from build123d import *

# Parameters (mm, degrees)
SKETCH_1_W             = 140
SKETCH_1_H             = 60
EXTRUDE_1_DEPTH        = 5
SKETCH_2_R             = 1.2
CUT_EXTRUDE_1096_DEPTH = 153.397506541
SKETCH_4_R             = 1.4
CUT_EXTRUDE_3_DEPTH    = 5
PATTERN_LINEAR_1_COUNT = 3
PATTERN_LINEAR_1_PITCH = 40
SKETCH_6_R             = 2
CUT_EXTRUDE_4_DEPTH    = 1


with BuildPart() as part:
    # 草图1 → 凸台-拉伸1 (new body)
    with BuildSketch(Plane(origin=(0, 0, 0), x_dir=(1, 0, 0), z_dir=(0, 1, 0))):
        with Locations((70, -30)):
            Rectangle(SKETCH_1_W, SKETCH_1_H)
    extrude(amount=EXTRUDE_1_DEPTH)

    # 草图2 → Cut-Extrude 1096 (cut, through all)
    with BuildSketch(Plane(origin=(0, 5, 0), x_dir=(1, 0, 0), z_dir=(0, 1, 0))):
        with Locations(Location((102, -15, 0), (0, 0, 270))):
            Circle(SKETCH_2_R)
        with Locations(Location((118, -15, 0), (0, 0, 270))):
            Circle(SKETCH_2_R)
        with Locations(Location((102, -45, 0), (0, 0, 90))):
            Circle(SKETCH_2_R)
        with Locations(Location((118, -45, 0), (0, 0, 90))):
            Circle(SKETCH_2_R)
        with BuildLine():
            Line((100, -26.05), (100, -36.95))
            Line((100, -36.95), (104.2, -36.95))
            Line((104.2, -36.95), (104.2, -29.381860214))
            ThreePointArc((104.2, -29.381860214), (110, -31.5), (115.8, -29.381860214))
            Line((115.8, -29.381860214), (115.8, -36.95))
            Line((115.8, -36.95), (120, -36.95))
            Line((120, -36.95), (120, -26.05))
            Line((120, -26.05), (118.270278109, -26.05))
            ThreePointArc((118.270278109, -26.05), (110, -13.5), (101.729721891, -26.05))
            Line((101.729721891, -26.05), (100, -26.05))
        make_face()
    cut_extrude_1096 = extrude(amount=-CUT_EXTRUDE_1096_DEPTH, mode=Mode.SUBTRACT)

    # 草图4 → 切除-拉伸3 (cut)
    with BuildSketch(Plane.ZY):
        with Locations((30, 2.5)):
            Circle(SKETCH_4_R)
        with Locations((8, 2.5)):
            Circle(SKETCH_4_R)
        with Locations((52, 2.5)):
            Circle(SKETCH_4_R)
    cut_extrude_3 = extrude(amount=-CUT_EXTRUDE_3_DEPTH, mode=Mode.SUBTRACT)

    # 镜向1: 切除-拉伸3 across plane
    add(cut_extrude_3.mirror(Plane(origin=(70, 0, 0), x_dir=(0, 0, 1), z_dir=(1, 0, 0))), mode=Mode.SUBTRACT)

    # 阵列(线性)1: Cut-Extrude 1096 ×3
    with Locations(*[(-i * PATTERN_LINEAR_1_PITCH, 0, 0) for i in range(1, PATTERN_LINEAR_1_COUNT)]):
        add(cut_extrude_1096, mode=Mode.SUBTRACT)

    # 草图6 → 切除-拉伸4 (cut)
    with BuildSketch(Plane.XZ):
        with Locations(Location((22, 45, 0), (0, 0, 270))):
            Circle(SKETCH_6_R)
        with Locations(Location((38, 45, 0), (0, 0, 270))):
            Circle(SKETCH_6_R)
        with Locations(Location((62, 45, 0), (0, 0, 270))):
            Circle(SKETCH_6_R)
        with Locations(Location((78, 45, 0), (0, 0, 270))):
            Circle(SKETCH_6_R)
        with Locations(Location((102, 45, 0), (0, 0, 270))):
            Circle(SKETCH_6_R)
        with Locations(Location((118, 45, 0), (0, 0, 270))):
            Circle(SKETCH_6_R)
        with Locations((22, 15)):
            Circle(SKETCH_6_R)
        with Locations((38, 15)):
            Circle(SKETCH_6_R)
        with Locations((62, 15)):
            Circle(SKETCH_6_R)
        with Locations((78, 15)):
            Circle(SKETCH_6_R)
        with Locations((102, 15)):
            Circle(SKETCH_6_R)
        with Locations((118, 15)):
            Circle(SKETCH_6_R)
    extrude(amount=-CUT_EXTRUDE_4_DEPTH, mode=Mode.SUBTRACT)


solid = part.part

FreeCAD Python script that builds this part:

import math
import FreeCAD as App
import Part
import Sketcher

V = App.Vector
Q = App.Units.Quantity


def add_polygon(sketch, points):
    """Adds a closed chain of lines whose ends are joined by coincident constraints."""
    first, n = sketch.GeometryCount, len(points)
    for a, b in zip(points, points[1:] + points[:1]):
        sketch.addGeometry(Part.LineSegment(App.Vector(*a, 0), App.Vector(*b, 0)), False)
    for i in range(n):
        sketch.addConstraint(Sketcher.Constraint("Coincident", first + i, 2, first + (i + 1) % n, 1))

doc = App.newDocument("Part")
params = doc.addObject("Spreadsheet::Sheet", "Params")
for row, (alias, value) in enumerate([
    ("sketch1_width", "140 mm"),
    ("sketch1_height", "60 mm"),
    ("pad1_length", "5 mm"),
    ("sketch2_radius", "9 mm"),
    ("sketch2_diameter", "2.4 mm"),
    ("sketch2_width", "4.2 mm"),
    ("sketch2_height", "10.9 mm"),
    ("sketch3_diameter", "2.8 mm"),
    ("pocket2_length", "5 mm"),
    ("linearpattern_pitch", "40 mm"),
    ("sketch4_diameter", "4 mm"),
    ("pocket3_length", "1 mm"),
], start=1):
    params.set(f"A{row}", alias)
    params.set(f"B{row}", "=" + value)
    params.setAlias(f"B{row}", alias)

body = doc.addObject("PartDesign::Body", "Body")

# Sketch on XZ plane
sketch1 = body.newObject("Sketcher::SketchObject", "Sketch")
sketch1.AttachmentSupport = (doc.getObject("XZ_Plane"), [""])
sketch1.MapMode = "FlatFace"
add_polygon(sketch1, [(0, 0), (0, 60), (140, 60), (140, 0)])  # lines 0-3
sketch1.addConstraint([
    Sketcher.Constraint("Vertical", 0),
    Sketcher.Constraint("Horizontal", 1),
    Sketcher.Constraint("Vertical", 2),
    Sketcher.Constraint("Horizontal", 3),
    Sketcher.Constraint("Coincident", 3, 2, -1, 1),
    Sketcher.Constraint("DistanceX", 1, 1, 1, 2, Q("140 mm")),
    Sketcher.Constraint("DistanceY", 0, 1, 0, 2, Q("60 mm")),
])
sketch1.setExpression("Constraints[9]", "Params.sketch1_width")
sketch1.setExpression("Constraints[10]", "Params.sketch1_height")
pad1 = body.newObject("PartDesign::Pad", "Pad")
pad1.Profile = sketch1
pad1.setExpression("Length", "Params.pad1_length")
pad1.Reversed = True

# Sketch on XZ plane
sketch2 = body.newObject("Sketcher::SketchObject", "Sketch001")
sketch2.AttachmentSupport = (doc.getObject("XZ_Plane"), [""])
sketch2.MapMode = "FlatFace"
sketch2.AttachmentOffset = App.Placement(V(0, 0, -5), App.Rotation())
sketch2.addGeometry([
    Part.Circle(V(102, 15, 0), V(0, 0, 1), 1.2),  # 0
    Part.Circle(V(118, 15, 0), V(0, 0, 1), 1.2),  # 1
    Part.Circle(V(102, 45, 0), V(0, 0, 1), 1.2),  # 2
    Part.Circle(V(118, 45, 0), V(0, 0, 1), 1.2),  # 3
    Part.LineSegment(V(100, 26.05, 0), V(100, 36.95, 0)),  # 4
    Part.LineSegment(V(100, 36.95, 0), V(104.2, 36.95, 0)),  # 5
    Part.LineSegment(V(104.2, 36.95, 0), V(104.2, 29.38186, 0)),  # 6
    Part.ArcOfCircle(Part.Circle(V(110, 22.5, 0), V(0, 0, 1), 9), math.radians(49.875965), math.radians(130.124035)),  # 7
    Part.LineSegment(V(115.8, 29.38186, 0), V(115.8, 36.95, 0)),  # 8
    Part.LineSegment(V(115.8, 36.95, 0), V(120, 36.95, 0)),  # 9
    Part.LineSegment(V(120, 36.95, 0), V(120, 26.05, 0)),  # 10
    Part.LineSegment(V(120, 26.05, 0), V(118.270278, 26.05, 0)),  # 11
    Part.ArcOfCircle(Part.Circle(V(110, 22.5, 0), V(0, 0, 1), 9), math.radians(156.76867), math.radians(383.23133)),  # 12
    Part.LineSegment(V(101.729722, 26.05, 0), V(100, 26.05, 0)),  # 13
], False)
sketch2.addConstraint([
    Sketcher.Constraint("Coincident", 4, 2, 5, 1),
    Sketcher.Constraint("Coincident", 5, 2, 6, 1),
    Sketcher.Constraint("Coincident", 6, 2, 7, 2),
    Sketcher.Constraint("Coincident", 7, 1, 8, 1),
    Sketcher.Constraint("Coincident", 8, 2, 9, 1),
    Sketcher.Constraint("Coincident", 9, 2, 10, 1),
    Sketcher.Constraint("Coincident", 10, 2, 11, 1),
    Sketcher.Constraint("Coincident", 11, 2, 12, 2),
    Sketcher.Constraint("Coincident", 12, 1, 13, 1),
    Sketcher.Constraint("Coincident", 13, 2, 4, 1),
    Sketcher.Constraint("Vertical", 4),
    Sketcher.Constraint("Horizontal", 5),
    Sketcher.Constraint("Vertical", 6),
    Sketcher.Constraint("Vertical", 8),
    Sketcher.Constraint("Horizontal", 9),
    Sketcher.Constraint("Vertical", 10),
    Sketcher.Constraint("Horizontal", 11),
    Sketcher.Constraint("Horizontal", 13),
    Sketcher.Constraint("Coincident", 12, 3, 7, 3),
    Sketcher.Constraint("Equal", 0, 1),
    Sketcher.Constraint("Equal", 1, 2),
    Sketcher.Constraint("Equal", 2, 3),
    Sketcher.Constraint("Equal", 7, 12),
    Sketcher.Constraint("Horizontal", 0, 3, 1, 3),
    Sketcher.Constraint("Horizontal", 2, 3, 3, 3),
    Sketcher.Constraint("Horizontal", 6, 2, 7, 1),
    Sketcher.Constraint("Horizontal", 5, 2, 8, 2),
    Sketcher.Constraint("Horizontal", 11, 2, 12, 1),
    Sketcher.Constraint("Vertical", 0, 3, 2, 3),
    Sketcher.Constraint("Vertical", 1, 3, 3, 3),
    Sketcher.Constraint("Equal", 5, 9),
    Sketcher.Constraint("Radius", 7, Q("9 mm")),
    Sketcher.Constraint("Diameter", 0, Q("2.4 mm")),
    Sketcher.Constraint("DistanceX", 5, 1, 5, 2, Q("4.2 mm")),
    Sketcher.Constraint("DistanceY", 4, 1, 4, 2, Q("10.9 mm")),
    Sketcher.Constraint("DistanceX", -1, 1, 0, 3, Q("102 mm")),
    Sketcher.Constraint("DistanceY", -1, 1, 0, 3, Q("15 mm")),
    Sketcher.Constraint("DistanceX", -1, 1, 1, 3, Q("118 mm")),
    Sketcher.Constraint("DistanceY", -1, 1, 2, 3, Q("45 mm")),
    Sketcher.Constraint("DistanceX", -1, 1, 7, 3, Q("110 mm")),
    Sketcher.Constraint("DistanceX", -1, 1, 4, 2, Q("100 mm")),
    Sketcher.Constraint("DistanceY", -1, 1, 7, 3, Q("22.5 mm")),
    Sketcher.Constraint("DistanceY", -1, 1, 4, 2, Q("36.95 mm")),
])
sketch2.setExpression("Constraints[31]", "Params.sketch2_radius")
sketch2.setExpression("Constraints[32]", "Params.sketch2_diameter")
sketch2.setExpression("Constraints[33]", "Params.sketch2_width")
sketch2.setExpression("Constraints[34]", "Params.sketch2_height")
pocket1 = body.newObject("PartDesign::Pocket", "Pocket")
pocket1.Profile = sketch2
pocket1.Type = "ThroughAll"
pocket1.Reversed = True

# Sketch on YZ plane
sketch3 = body.newObject("Sketcher::SketchObject", "Sketch002")
sketch3.AttachmentSupport = (doc.getObject("YZ_Plane"), [""])
sketch3.MapMode = "FlatFace"
sketch3.addGeometry([
    Part.Circle(V(2.5, 30, 0), V(0, 0, 1), 1.4),
    Part.Circle(V(2.5, 8, 0), V(0, 0, 1), 1.4),
    Part.Circle(V(2.5, 52, 0), V(0, 0, 1), 1.4),
], False)
sketch3.addConstraint([
    Sketcher.Constraint("Equal", 0, 1),
    Sketcher.Constraint("Equal", 1, 2),
    Sketcher.Constraint("Vertical", 0, 3, 1, 3),
    Sketcher.Constraint("Vertical", 1, 3, 2, 3),
    Sketcher.Constraint("Diameter", 0, Q("2.8 mm")),
    Sketcher.Constraint("DistanceY", -1, 1, 0, 3, Q("30 mm")),
    Sketcher.Constraint("DistanceY", -1, 1, 1, 3, Q("8 mm")),
    Sketcher.Constraint("DistanceY", -1, 1, 2, 3, Q("52 mm")),
    Sketcher.Constraint("DistanceX", -1, 1, 0, 3, Q("2.5 mm")),
])
sketch3.setExpression("Constraints[4]", "Params.sketch3_diameter")
pocket2 = body.newObject("PartDesign::Pocket", "Pocket001")
pocket2.Profile = sketch3
pocket2.setExpression("Length", "Params.pocket2_length")
pocket2.Reversed = True
doc.recompute()

datumplane = body.newObject("PartDesign::Plane", "DatumPlane")
datumplane.AttachmentSupport = (doc.getObject("YZ_Plane"), [""])
datumplane.MapMode = "FlatFace"
datumplane.AttachmentOffset = App.Placement(V(0, 0, 70), App.Rotation())
mirrored = body.newObject("PartDesign::Mirrored", "Mirrored")
mirrored.Originals = [pocket2]
mirrored.MirrorPlane = (datumplane, [""])
body.Tip = mirrored
doc.recompute()

linearpattern = body.newObject("PartDesign::LinearPattern", "LinearPattern")
linearpattern.Originals = [pocket1]
linearpattern.Direction = (doc.getObject("X_Axis"), [""])
linearpattern.Mode = "offset"
linearpattern.setExpression("Offset", "Params.linearpattern_pitch")
linearpattern.Occurrences = 3
linearpattern.Reversed = True
body.Tip = linearpattern

# Sketch on XZ plane
sketch4 = body.newObject("Sketcher::SketchObject", "Sketch003")
sketch4.AttachmentSupport = (doc.getObject("XZ_Plane"), [""])
sketch4.MapMode = "FlatFace"
sketch4.addGeometry([
    Part.Circle(V(22, 45, 0), V(0, 0, 1), 2),  # 0
    Part.Circle(V(38, 45, 0), V(0, 0, 1), 2),  # 1
    Part.Circle(V(62, 45, 0), V(0, 0, 1), 2),  # 2
    Part.Circle(V(78, 45, 0), V(0, 0, 1), 2),  # 3
    Part.Circle(V(102, 45, 0), V(0, 0, 1), 2),  # 4
    Part.Circle(V(118, 45, 0), V(0, 0, 1), 2),  # 5
    Part.Circle(V(22, 15, 0), V(0, 0, 1), 2),  # 6
    Part.Circle(V(38, 15, 0), V(0, 0, 1), 2),  # 7
    Part.Circle(V(62, 15, 0), V(0, 0, 1), 2),  # 8
    Part.Circle(V(78, 15, 0), V(0, 0, 1), 2),  # 9
    Part.Circle(V(102, 15, 0), V(0, 0, 1), 2),  # 10
    Part.Circle(V(118, 15, 0), V(0, 0, 1), 2),  # 11
], False)
sketch4.addConstraint([
    Sketcher.Constraint("Equal", 0, 1),
    Sketcher.Constraint("Equal", 1, 2),
    Sketcher.Constraint("Equal", 2, 3),
    Sketcher.Constraint("Equal", 3, 4),
    Sketcher.Constraint("Equal", 4, 5),
    Sketcher.Constraint("Equal", 5, 6),
    Sketcher.Constraint("Equal", 6, 7),
    Sketcher.Constraint("Equal", 7, 8),
    Sketcher.Constraint("Equal", 8, 9),
    Sketcher.Constraint("Equal", 9, 10),
    Sketcher.Constraint("Equal", 10, 11),
    Sketcher.Constraint("Horizontal", 0, 3, 1, 3),
    Sketcher.Constraint("Horizontal", 1, 3, 2, 3),
    Sketcher.Constraint("Horizontal", 2, 3, 3, 3),
    Sketcher.Constraint("Horizontal", 3, 3, 4, 3),
    Sketcher.Constraint("Horizontal", 4, 3, 5, 3),
    Sketcher.Constraint("Horizontal", 6, 3, 7, 3),
    Sketcher.Constraint("Horizontal", 7, 3, 8, 3),
    Sketcher.Constraint("Horizontal", 8, 3, 9, 3),
    Sketcher.Constraint("Horizontal", 9, 3, 10, 3),
    Sketcher.Constraint("Horizontal", 10, 3, 11, 3),
    Sketcher.Constraint("Vertical", 0, 3, 6, 3),
    Sketcher.Constraint("Vertical", 1, 3, 7, 3),
    Sketcher.Constraint("Vertical", 2, 3, 8, 3),
    Sketcher.Constraint("Vertical", 3, 3, 9, 3),
    Sketcher.Constraint("Vertical", 4, 3, 10, 3),
    Sketcher.Constraint("Vertical", 5, 3, 11, 3),
    Sketcher.Constraint("Diameter", 0, Q("4 mm")),
    Sketcher.Constraint("DistanceX", -1, 1, 0, 3, Q("22 mm")),
    Sketcher.Constraint("DistanceY", -1, 1, 0, 3, Q("45 mm")),
    Sketcher.Constraint("DistanceX", -1, 1, 1, 3, Q("38 mm")),
    Sketcher.Constraint("DistanceX", -1, 1, 2, 3, Q("62 mm")),
    Sketcher.Constraint("DistanceX", -1, 1, 3, 3, Q("78 mm")),
    Sketcher.Constraint("DistanceX", -1, 1, 4, 3, Q("102 mm")),
    Sketcher.Constraint("DistanceX", -1, 1, 5, 3, Q("118 mm")),
    Sketcher.Constraint("DistanceY", -1, 1, 6, 3, Q("15 mm")),
])
sketch4.setExpression("Constraints[27]", "Params.sketch4_diameter")
pocket3 = body.newObject("PartDesign::Pocket", "Pocket002")
pocket3.Profile = sketch4
pocket3.setExpression("Length", "Params.pocket3_length")

doc.recompute()
